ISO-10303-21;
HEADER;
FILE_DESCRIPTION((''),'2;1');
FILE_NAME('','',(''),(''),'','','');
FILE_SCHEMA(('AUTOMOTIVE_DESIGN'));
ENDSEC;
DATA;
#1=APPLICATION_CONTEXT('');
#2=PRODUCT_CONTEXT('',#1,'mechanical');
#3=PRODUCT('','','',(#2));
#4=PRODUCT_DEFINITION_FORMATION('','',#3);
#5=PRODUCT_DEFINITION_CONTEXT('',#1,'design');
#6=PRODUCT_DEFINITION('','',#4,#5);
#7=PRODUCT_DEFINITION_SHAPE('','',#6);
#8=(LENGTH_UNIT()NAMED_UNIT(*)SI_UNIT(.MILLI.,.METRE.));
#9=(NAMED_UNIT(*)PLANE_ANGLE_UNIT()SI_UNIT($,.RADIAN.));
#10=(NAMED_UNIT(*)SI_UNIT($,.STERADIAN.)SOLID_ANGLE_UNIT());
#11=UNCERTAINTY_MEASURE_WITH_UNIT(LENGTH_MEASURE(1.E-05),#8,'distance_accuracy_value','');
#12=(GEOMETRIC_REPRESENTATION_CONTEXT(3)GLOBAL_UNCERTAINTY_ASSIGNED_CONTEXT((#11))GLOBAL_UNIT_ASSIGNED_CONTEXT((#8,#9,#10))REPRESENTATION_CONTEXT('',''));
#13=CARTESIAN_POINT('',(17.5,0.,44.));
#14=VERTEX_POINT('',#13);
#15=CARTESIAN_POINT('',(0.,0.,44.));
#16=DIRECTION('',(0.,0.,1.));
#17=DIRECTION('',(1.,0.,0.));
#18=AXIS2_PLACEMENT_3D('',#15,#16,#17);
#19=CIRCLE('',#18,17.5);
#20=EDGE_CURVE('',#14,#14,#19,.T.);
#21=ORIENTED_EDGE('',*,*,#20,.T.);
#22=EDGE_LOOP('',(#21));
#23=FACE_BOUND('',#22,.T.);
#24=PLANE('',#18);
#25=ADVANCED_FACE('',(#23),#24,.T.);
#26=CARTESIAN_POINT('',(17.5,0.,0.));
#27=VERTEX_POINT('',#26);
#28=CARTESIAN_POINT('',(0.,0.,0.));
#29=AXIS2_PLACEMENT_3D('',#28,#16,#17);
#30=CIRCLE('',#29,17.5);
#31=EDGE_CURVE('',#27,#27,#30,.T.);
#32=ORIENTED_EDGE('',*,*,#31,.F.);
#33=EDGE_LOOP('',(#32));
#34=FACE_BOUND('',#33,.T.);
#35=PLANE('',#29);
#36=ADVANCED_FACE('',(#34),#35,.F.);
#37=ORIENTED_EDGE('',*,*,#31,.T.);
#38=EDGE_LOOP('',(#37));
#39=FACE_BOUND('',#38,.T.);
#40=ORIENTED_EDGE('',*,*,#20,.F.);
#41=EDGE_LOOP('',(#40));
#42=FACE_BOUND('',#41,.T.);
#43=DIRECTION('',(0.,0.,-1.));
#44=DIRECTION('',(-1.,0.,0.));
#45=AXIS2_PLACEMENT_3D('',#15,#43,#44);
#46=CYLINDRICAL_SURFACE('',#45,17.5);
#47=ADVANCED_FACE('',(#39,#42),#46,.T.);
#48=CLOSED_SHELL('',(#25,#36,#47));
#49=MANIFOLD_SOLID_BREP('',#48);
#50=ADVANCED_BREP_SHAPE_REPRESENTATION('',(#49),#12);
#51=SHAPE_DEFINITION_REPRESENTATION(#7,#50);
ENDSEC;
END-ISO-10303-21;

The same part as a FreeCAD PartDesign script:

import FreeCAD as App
import Part
import Sketcher

V = App.Vector

doc = App.newDocument("Part")
body = doc.addObject("PartDesign::Body", "Body")

# Sketch on XY plane
sketch1 = body.newObject("Sketcher::SketchObject", "Sketch")
sketch1.AttachmentSupport = (doc.getObject("XY_Plane"), [""])
sketch1.MapMode = "FlatFace"
sketch1.addGeometry(Part.Circle(V(0, 0, 0), V(0, 0, 1), 18), False)
sketch1.addConstraint([
    Sketcher.Constraint("Coincident", 0, 3, -1, 1),
    Sketcher.Constraint("Diameter", 0, 35.0),
])
pad1 = body.newObject("PartDesign::Pad", "Pad")
pad1.Profile = sketch1
pad1.Length = 44

doc.recompute()
